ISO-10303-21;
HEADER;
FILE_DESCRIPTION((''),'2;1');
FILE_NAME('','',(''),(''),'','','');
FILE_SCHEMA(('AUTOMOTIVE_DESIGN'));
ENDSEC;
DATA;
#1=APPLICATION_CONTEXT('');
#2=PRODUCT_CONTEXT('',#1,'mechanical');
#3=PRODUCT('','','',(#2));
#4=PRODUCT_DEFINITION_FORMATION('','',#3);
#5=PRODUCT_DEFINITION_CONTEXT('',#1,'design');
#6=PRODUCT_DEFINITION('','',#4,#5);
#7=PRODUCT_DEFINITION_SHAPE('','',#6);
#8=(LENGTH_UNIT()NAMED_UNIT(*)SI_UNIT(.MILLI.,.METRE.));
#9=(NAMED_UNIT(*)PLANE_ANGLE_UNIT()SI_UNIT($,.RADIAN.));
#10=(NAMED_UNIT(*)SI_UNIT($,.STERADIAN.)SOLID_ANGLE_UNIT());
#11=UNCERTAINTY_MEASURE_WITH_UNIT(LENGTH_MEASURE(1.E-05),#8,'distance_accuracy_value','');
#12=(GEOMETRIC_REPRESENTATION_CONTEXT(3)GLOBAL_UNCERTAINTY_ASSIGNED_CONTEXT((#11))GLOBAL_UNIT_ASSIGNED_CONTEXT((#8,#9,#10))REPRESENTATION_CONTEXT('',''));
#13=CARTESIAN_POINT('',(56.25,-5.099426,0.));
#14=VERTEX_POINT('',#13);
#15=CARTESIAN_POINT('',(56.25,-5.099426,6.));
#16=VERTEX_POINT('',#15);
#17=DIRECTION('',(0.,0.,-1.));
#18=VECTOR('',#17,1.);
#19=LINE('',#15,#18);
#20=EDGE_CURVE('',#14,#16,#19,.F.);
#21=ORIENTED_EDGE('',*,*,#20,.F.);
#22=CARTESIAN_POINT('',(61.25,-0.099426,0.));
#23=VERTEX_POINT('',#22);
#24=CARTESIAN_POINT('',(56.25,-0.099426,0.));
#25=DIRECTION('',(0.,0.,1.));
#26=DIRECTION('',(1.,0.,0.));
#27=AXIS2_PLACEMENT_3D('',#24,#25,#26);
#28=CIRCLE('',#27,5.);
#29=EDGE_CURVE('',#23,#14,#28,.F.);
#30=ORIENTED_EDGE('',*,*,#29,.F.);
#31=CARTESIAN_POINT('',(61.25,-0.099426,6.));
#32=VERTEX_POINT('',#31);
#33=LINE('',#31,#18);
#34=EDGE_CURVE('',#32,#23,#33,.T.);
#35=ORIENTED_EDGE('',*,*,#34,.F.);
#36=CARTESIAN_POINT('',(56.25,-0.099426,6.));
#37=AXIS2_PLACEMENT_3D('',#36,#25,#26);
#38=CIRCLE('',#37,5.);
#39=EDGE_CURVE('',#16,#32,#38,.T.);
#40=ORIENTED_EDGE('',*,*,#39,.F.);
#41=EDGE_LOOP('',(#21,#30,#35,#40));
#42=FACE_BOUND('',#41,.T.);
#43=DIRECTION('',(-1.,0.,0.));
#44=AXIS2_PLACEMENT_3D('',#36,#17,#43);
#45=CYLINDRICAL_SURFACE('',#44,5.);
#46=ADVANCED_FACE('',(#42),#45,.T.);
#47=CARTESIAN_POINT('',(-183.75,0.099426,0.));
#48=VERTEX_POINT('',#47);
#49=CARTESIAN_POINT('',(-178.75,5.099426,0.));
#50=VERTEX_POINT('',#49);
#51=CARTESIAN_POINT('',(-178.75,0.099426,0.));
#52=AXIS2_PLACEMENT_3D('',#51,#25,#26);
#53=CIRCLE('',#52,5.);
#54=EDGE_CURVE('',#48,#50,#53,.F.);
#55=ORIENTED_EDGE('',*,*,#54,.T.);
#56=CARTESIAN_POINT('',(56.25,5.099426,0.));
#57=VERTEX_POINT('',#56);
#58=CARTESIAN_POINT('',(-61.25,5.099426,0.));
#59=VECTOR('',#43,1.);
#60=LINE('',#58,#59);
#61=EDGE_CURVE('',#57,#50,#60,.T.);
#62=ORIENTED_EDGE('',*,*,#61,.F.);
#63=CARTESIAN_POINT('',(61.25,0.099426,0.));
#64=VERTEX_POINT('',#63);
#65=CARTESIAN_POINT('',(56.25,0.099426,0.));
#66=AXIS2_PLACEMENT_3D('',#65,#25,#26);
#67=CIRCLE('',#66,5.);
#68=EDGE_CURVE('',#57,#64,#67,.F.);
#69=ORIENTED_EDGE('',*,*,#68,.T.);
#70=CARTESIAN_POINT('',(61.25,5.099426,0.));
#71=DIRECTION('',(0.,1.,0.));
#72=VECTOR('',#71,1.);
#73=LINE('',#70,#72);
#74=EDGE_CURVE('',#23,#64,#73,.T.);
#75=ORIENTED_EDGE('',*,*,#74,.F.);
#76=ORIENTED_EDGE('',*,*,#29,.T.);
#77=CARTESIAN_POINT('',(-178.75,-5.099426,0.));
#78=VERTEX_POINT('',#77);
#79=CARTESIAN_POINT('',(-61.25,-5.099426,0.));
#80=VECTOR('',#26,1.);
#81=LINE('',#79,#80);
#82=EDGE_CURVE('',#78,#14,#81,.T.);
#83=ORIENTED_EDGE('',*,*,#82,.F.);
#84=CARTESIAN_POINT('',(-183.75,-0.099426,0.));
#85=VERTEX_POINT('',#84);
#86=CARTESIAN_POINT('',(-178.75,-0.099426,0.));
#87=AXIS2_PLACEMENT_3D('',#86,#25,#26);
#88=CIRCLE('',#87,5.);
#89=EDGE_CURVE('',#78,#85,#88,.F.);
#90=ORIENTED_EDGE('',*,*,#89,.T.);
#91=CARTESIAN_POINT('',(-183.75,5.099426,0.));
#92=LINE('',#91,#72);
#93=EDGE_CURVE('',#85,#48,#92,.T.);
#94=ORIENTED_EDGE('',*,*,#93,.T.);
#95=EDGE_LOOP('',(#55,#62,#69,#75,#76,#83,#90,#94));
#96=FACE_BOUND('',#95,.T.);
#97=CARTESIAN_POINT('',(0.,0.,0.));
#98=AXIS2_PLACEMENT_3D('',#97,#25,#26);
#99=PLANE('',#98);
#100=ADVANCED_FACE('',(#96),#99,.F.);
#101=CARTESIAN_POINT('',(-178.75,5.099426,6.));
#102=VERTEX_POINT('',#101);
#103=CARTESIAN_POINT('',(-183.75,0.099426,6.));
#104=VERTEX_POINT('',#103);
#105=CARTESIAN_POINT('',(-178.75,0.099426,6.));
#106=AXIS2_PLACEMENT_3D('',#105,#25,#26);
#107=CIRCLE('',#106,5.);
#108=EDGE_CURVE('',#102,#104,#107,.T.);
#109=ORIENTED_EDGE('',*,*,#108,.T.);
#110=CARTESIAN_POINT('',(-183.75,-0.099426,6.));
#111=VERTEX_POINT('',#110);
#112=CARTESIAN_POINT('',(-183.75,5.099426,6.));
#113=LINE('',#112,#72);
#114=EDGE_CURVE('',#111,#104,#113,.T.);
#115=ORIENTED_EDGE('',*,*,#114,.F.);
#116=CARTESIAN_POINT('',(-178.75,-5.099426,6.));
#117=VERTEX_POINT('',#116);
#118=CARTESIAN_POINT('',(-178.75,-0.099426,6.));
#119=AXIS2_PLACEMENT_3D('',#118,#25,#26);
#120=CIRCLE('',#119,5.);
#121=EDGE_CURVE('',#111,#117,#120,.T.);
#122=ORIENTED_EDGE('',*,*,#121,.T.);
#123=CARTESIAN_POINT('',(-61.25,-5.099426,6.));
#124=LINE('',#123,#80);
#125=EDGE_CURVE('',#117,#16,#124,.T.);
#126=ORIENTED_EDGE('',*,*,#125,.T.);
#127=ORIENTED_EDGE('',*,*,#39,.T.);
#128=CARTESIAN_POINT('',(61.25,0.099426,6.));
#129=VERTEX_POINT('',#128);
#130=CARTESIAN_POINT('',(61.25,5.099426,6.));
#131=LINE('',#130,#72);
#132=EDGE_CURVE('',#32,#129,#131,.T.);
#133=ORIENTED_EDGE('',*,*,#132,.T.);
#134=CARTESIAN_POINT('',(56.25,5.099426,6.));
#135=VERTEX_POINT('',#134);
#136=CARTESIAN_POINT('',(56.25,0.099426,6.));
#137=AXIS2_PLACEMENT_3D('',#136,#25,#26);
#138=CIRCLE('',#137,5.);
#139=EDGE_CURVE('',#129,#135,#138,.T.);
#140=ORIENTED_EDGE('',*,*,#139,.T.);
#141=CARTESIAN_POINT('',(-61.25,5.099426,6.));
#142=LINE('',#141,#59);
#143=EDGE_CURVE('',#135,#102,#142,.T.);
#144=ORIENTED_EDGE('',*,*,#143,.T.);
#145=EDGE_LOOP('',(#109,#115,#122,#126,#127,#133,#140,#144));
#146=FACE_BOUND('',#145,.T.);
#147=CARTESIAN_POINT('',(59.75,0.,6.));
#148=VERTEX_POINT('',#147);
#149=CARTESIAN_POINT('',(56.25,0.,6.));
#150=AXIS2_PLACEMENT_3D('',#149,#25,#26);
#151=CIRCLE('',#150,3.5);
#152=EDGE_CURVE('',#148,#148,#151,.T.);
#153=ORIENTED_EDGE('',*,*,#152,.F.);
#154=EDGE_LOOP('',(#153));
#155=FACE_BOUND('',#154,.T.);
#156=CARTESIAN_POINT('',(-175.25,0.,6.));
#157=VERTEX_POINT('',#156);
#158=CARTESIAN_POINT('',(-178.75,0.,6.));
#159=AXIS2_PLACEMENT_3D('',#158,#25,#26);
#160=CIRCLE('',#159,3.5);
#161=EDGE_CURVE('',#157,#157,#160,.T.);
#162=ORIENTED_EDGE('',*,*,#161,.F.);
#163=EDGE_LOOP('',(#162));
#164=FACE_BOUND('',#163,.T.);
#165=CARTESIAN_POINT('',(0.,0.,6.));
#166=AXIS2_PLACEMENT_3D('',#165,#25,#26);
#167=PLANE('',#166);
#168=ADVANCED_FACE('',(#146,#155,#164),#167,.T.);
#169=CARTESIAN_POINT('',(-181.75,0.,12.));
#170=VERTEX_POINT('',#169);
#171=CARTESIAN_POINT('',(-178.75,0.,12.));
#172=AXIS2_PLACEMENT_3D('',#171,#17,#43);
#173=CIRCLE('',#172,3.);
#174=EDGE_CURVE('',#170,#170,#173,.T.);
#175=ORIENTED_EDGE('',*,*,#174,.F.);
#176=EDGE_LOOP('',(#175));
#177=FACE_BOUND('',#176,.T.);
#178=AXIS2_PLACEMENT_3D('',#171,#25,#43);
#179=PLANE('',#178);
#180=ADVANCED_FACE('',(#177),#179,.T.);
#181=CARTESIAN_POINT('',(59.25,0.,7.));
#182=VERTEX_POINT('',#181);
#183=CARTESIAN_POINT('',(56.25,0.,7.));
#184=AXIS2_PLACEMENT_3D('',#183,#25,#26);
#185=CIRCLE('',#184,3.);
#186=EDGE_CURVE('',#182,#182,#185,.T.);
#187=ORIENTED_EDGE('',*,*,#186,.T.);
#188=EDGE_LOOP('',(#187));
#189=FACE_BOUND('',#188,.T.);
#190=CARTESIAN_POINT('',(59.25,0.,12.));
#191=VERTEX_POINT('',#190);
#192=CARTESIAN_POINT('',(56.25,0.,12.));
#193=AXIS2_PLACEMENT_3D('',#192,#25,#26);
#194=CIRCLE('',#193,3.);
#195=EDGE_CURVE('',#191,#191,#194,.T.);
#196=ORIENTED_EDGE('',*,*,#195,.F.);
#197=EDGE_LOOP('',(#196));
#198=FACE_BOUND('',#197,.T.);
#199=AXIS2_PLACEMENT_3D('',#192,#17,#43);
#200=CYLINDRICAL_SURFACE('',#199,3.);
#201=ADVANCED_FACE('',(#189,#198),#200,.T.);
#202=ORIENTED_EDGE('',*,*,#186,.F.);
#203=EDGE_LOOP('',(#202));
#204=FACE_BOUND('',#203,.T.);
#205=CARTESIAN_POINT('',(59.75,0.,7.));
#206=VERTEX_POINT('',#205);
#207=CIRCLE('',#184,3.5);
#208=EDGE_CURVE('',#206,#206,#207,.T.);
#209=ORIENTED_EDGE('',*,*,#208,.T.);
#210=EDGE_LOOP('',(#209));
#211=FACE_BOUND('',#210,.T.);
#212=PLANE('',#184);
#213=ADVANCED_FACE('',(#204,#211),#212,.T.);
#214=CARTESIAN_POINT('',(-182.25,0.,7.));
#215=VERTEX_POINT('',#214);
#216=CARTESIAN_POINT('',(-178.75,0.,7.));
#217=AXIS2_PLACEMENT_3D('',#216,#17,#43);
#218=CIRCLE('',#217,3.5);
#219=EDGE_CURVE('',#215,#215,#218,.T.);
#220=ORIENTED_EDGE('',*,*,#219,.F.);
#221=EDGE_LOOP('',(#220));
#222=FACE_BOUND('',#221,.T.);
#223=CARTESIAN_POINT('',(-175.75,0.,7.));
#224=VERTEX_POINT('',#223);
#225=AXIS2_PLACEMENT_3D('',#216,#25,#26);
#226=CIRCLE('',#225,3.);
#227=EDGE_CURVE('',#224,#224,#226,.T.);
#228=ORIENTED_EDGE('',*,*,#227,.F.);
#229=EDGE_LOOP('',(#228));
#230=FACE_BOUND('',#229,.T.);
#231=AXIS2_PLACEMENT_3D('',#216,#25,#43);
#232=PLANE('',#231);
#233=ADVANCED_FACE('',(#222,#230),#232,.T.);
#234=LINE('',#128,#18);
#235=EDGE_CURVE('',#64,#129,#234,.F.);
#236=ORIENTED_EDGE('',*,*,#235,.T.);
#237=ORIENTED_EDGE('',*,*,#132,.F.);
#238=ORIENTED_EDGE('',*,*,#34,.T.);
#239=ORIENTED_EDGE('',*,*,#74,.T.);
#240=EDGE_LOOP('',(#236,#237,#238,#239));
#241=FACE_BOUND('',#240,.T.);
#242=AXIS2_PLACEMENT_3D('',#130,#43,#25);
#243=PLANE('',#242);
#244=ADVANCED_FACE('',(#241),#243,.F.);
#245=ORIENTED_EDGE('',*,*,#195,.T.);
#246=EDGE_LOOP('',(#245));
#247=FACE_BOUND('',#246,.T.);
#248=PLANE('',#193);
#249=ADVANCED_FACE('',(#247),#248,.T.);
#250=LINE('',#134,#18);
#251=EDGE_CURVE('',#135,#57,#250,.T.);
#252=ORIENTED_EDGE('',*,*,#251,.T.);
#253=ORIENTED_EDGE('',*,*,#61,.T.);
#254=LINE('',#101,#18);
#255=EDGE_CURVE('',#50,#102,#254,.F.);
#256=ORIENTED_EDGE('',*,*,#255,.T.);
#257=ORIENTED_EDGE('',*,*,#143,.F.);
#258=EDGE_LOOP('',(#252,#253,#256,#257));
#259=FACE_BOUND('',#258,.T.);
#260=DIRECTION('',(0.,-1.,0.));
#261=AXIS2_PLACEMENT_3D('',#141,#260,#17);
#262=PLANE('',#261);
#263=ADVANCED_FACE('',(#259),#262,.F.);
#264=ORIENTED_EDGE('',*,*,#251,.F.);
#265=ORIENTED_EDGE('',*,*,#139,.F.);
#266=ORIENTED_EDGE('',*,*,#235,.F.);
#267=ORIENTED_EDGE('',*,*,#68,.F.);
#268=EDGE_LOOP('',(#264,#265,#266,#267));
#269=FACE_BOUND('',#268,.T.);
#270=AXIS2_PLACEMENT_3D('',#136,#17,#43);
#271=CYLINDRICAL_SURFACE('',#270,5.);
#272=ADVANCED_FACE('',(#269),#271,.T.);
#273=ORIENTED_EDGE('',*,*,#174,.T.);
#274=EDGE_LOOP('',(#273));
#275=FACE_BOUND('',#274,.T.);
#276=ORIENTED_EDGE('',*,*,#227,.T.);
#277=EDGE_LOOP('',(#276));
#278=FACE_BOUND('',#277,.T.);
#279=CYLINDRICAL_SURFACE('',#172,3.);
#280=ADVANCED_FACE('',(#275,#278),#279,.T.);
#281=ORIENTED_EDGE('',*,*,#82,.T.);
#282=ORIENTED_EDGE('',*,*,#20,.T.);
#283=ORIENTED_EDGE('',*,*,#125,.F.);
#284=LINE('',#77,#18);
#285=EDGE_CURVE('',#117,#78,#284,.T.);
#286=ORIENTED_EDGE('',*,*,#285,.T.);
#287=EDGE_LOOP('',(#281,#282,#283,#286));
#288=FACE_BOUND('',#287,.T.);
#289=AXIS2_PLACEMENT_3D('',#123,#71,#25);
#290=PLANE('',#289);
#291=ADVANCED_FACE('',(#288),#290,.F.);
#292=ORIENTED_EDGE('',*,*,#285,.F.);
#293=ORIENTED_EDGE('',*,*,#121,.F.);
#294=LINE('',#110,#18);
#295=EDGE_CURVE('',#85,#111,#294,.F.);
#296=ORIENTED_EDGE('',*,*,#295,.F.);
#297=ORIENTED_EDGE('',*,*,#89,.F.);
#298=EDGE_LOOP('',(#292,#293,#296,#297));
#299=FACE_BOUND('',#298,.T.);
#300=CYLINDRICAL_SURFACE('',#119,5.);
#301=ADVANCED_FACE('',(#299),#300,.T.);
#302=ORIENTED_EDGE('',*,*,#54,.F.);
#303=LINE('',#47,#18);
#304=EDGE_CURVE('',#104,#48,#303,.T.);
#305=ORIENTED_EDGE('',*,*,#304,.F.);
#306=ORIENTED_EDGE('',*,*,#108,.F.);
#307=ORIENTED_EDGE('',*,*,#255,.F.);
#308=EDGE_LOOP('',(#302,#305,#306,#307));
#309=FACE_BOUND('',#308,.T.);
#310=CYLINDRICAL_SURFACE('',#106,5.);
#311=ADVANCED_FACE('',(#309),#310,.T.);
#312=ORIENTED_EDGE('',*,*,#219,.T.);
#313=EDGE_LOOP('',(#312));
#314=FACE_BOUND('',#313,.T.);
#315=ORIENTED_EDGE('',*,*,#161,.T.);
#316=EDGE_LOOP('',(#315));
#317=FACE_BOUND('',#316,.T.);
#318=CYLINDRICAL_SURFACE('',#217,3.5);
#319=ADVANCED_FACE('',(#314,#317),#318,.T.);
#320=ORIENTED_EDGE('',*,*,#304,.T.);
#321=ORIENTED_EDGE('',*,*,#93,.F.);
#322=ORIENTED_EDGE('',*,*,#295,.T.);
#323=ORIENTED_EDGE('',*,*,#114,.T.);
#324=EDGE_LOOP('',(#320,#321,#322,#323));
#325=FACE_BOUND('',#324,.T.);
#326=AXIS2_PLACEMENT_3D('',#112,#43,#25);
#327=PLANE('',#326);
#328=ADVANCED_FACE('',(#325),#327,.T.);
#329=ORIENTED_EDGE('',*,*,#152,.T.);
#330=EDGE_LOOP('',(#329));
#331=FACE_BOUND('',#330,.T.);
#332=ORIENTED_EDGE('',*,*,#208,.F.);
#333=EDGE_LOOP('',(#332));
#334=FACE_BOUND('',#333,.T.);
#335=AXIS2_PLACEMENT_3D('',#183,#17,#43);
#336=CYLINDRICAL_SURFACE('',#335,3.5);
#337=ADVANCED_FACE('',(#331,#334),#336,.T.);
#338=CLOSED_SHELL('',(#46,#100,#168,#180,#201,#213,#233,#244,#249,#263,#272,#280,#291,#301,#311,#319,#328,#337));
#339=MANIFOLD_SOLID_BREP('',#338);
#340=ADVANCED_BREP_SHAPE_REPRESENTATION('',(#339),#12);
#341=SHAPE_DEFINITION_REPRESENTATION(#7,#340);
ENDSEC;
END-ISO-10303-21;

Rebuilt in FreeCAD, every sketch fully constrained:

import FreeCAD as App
import Part
import Sketcher
Q = App.Units.Quantity


def edges_at(feature, points):
    """Names of the edges that pass closest to the given points."""
    edges = feature.Shape.Edges
    near = lambda p: min(range(len(edges)), key=lambda i: edges[i].distToShape(Part.Vertex(*p))[0])
    return sorted({f"Edge{near(p) + 1}" for p in points})


def add_polygon(sketch, points):
    """Adds a closed chain of lines whose ends are joined by coincident constraints."""
    first, n = sketch.GeometryCount, len(points)
    for a, b in zip(points, points[1:] + points[:1]):
        sketch.addGeometry(Part.LineSegment(App.Vector(*a, 0), App.Vector(*b, 0)), False)
    for i in range(n):
        sketch.addConstraint(Sketcher.Constraint("Coincident", first + i, 2, first + (i + 1) % n, 1))

doc = App.newDocument("Part")
body = doc.addObject("PartDesign::Body", "Body")

# Sketch on XY plane
sketch1 = body.newObject("Sketcher::SketchObject", "Sketch")
sketch1.AttachmentSupport = (doc.getObject("XY_Plane"), [""])
sketch1.MapMode = "FlatFace"
add_polygon(sketch1, [(-61.25, 5.099426), (-61.25, -5.099426), (61.25, -5.099426), (61.25, 5.099426)])  # lines 0-3
sketch1.addConstraint(Sketcher.Constraint("Vertical", 0))
sketch1.addConstraint(Sketcher.Constraint("Horizontal", 1))
sketch1.addConstraint(Sketcher.Constraint("Vertical", 2))
sketch1.addConstraint(Sketcher.Constraint("Horizontal", 3))
sketch1.addConstraint(Sketcher.Constraint("Symmetric", 0, 2, 2, 2, -1, 1))
sketch1.addConstraint(Sketcher.Constraint("DistanceX", 1, 1, 1, 2, Q("122.5 mm")))
sketch1.addConstraint(Sketcher.Constraint("DistanceY", 0, 2, 0, 1, Q("10.198853 mm")))
pad1 = body.newObject("PartDesign::Pad", "Pad")
pad1.Profile = sketch1
pad1.Length = 6
doc.recompute()

fillet = body.newObject("PartDesign::Fillet", "Fillet")
fillet.Base = (pad1, edges_at(pad1, [(61.25, -5.099, 3), (61.25, 5.099, 3)]))
fillet.Radius = 5

# Sketch on XY plane
sketch2 = body.newObject("Sketcher::SketchObject", "Sketch001")
sketch2.AttachmentSupport = (doc.getObject("XY_Plane"), [""])
sketch2.MapMode = "FlatFace"
sketch2.AttachmentOffset = App.Placement(App.Vector(0, 0, 6), App.Rotation())
sketch2.addGeometry(Part.Circle(App.Vector(56.25, 0, 0), App.Vector(0, 0, 1), 3.5), False)
sketch2.addConstraint(Sketcher.Constraint("PointOnObject", 0, 3, -1))
sketch2.addConstraint(Sketcher.Constraint("Diameter", 0, Q("7 mm")))
sketch2.addConstraint(Sketcher.Constraint("DistanceX", -1, 1, 0, 3, Q("56.25 mm")))
pad2 = body.newObject("PartDesign::Pad", "Pad001")
pad2.Profile = sketch2
pad2.Length = 1

# Sketch on XY plane
sketch3 = body.newObject("Sketcher::SketchObject", "Sketch002")
sketch3.AttachmentSupport = (doc.getObject("XY_Plane"), [""])
sketch3.MapMode = "FlatFace"
sketch3.AttachmentOffset = App.Placement(App.Vector(0, 0, 7), App.Rotation())
sketch3.addGeometry(Part.Circle(App.Vector(56.25, 0, 0), App.Vector(0, 0, 1), 3), False)
sketch3.addConstraint(Sketcher.Constraint("PointOnObject", 0, 3, -1))
sketch3.addConstraint(Sketcher.Constraint("Diameter", 0, Q("6 mm")))
sketch3.addConstraint(Sketcher.Constraint("DistanceX", -1, 1, 0, 3, Q("56.25 mm")))
pad3 = body.newObject("PartDesign::Pad", "Pad002")
pad3.Profile = sketch3
pad3.Length = 5
doc.recompute()

datumplane = body.newObject("PartDesign::Plane", "DatumPlane")
datumplane.AttachmentSupport = (doc.getObject("YZ_Plane"), [""])
datumplane.MapMode = "FlatFace"
datumplane.AttachmentOffset = App.Placement(App.Vector(0, 0, -61.25), App.Rotation())
mirrored = body.newObject("PartDesign::Mirrored", "Mirrored")
mirrored.Originals = [pad1, pad2, pad3]
mirrored.MirrorPlane = (datumplane, [""])
body.Tip = mirrored
doc.recompute()

fillet2 = body.newObject("PartDesign::Fillet", "Fillet001")
fillet2.Base = (mirrored, edges_at(mirrored, [(-183.75, -5.099, 3), (-183.75, 5.099, 3)]))
fillet2.Radius = 5

doc.recompute()
